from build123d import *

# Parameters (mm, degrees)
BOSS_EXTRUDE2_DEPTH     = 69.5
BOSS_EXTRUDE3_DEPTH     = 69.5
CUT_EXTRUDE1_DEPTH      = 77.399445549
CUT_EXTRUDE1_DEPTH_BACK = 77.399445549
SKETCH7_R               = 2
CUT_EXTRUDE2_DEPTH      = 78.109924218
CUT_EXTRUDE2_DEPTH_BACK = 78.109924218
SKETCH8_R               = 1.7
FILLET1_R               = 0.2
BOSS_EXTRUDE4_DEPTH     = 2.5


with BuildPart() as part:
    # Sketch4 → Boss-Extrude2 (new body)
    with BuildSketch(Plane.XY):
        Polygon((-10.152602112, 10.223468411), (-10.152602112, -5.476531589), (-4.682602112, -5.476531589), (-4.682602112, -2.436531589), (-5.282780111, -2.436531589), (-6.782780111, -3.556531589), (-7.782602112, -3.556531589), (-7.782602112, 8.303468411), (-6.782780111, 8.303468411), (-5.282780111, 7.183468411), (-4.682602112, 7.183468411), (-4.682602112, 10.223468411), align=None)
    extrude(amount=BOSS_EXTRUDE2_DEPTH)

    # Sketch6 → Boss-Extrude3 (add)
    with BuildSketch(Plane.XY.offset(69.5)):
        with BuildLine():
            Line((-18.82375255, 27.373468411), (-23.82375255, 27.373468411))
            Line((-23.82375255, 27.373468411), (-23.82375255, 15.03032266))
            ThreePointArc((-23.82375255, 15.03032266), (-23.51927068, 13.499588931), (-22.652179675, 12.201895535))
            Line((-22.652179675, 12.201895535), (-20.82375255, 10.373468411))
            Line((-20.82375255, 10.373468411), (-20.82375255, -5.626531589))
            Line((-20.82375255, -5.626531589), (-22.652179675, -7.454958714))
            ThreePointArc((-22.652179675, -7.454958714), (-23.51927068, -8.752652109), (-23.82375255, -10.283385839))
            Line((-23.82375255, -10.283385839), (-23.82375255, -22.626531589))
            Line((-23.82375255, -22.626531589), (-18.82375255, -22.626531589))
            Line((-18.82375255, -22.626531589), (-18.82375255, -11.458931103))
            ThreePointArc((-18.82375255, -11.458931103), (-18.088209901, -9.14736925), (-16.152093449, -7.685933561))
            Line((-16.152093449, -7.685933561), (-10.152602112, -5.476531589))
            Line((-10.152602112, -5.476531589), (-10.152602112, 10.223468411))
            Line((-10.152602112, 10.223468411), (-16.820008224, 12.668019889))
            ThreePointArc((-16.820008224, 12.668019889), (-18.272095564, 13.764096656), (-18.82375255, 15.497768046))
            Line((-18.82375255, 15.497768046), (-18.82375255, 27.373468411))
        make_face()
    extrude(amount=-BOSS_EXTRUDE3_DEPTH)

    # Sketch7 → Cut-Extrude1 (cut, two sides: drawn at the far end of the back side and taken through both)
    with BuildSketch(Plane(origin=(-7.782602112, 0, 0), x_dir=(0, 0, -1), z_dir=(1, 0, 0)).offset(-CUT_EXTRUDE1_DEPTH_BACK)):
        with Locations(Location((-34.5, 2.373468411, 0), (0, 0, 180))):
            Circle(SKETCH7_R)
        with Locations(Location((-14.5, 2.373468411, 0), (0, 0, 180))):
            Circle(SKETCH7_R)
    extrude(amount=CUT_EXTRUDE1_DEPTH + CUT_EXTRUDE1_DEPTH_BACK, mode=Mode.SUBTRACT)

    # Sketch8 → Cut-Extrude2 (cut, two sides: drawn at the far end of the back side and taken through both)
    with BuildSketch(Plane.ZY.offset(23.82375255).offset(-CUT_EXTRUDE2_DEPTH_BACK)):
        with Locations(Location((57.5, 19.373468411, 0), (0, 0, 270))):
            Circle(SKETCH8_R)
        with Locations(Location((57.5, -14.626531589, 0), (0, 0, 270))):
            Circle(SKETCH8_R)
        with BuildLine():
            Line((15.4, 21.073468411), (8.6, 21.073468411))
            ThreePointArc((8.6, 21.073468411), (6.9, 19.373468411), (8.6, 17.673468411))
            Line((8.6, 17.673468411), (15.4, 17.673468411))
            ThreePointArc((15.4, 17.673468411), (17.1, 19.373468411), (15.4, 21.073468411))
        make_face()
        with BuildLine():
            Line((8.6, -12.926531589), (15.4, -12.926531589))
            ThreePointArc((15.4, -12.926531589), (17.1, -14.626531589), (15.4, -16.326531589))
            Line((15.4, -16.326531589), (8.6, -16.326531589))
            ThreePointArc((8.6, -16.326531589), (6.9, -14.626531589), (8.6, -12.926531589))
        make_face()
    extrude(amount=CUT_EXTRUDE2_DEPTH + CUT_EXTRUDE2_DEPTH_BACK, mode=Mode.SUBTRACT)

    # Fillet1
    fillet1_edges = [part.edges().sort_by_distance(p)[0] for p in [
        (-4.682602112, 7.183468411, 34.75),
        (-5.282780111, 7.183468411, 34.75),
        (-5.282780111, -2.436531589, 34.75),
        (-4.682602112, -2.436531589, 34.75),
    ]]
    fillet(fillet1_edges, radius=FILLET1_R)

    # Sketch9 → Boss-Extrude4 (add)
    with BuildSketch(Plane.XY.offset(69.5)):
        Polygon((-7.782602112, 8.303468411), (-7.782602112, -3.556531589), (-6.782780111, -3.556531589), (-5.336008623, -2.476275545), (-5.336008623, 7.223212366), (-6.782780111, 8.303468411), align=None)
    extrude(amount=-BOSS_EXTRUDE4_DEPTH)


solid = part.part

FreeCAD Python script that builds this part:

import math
import FreeCAD as App
import Part
import Sketcher


def edges_at(feature, points):
    """Names of the edges that pass closest to the given points."""
    edges = feature.Shape.Edges
    near = lambda p: min(range(len(edges)), key=lambda i: edges[i].distToShape(Part.Vertex(*p))[0])
    return sorted({f"Edge{near(p) + 1}" for p in points})


def add_polygon(sketch, points):
    """Adds a closed chain of lines whose ends are joined by coincident constraints."""
    first, n = sketch.GeometryCount, len(points)
    for a, b in zip(points, points[1:] + points[:1]):
        sketch.addGeometry(Part.LineSegment(App.Vector(*a, 0), App.Vector(*b, 0)), False)
    for i in range(n):
        sketch.addConstraint(Sketcher.Constraint("Coincident", first + i, 2, first + (i + 1) % n, 1))

doc = App.newDocument("Part")
params = doc.addObject("Spreadsheet::Sheet", "Params")
for row, (alias, value) in enumerate([
    ("sketch1_height", "15.7 mm"),
    ("sketch1_width", "5.47 mm"),
    ("sketch1_height2", "3.04 mm"),
    ("sketch1_height3", "11.86 mm"),
    ("pad1_length", "69.5 mm"),
    ("sketch2_radius", "4 mm"),
    ("sketch2_radius2", "3 mm"),
    ("sketch2_width", "5 mm"),
    ("sketch2_height", "16 mm"),
    ("sketch2_height2", "15.7 mm"),
    ("pad2_length", "69.5 mm"),
    ("sketch3_diameter", "4 mm"),
    ("sketch4_diameter", "3.4 mm"),
    ("sketch4_height", "6.8 mm"),
    ("fillet_radius", "0.2 mm"),
    ("sketch5_height", "11.86 mm"),
    ("pad3_length", "2.5 mm"),
], start=1):
    params.set(f"A{row}", alias)
    params.set(f"B{row}", "=" + value)
    params.setAlias(f"B{row}", alias)

body = doc.addObject("PartDesign::Body", "Body")

sketch1 = body.newObject("Sketcher::SketchObject", "Sketch")
sketch1.AttachmentSupport = (doc.getObject("XY_Plane"), [""])
sketch1.MapMode = "FlatFace"
add_polygon(sketch1, [(-10.2, 10.2), (-10.2, -5.5), (-4.7, -5.5), (-4.7, -2.4), (-5.3, -2.4), (-6.8, -3.6), (-7.8, -3.6), (-7.8, 8.3), (-6.8, 8.3), (-5.3, 7.2), (-4.7, 7.2), (-4.7, 10.2)])
sketch1.addConstraint(Sketcher.Constraint("Vertical", 0))
sketch1.addConstraint(Sketcher.Constraint("Horizontal", 1))
sketch1.addConstraint(Sketcher.Constraint("Vertical", 2))
sketch1.addConstraint(Sketcher.Constraint("Horizontal", 3))
sketch1.addConstraint(Sketcher.Constraint("Horizontal", 5))
sketch1.addConstraint(Sketcher.Constraint("Vertical", 6))
sketch1.addConstraint(Sketcher.Constraint("Horizontal", 7))
sketch1.addConstraint(Sketcher.Constraint("Horizontal", 9))
sketch1.addConstraint(Sketcher.Constraint("Vertical", 10))
sketch1.addConstraint(Sketcher.Constraint("Horizontal", 11))
sketch1.addConstraint(Sketcher.Constraint("Vertical", 4, 2, 7, 2))
sketch1.addConstraint(Sketcher.Constraint("Vertical", 3, 2, 8, 2))
sketch1.addConstraint(Sketcher.Constraint("Vertical", 2, 2, 9, 2))
sketch1.addConstraint(Sketcher.Constraint("Equal", 2, 10))
sketch1.addConstraint(Sketcher.Constraint("Equal", 4, 8))
sketch1.addConstraint(Sketcher.Constraint("DistanceY", 0, 2, 0, 1, 15.7))
sketch1.addConstraint(Sketcher.Constraint("DistanceX", 1, 1, 1, 2, 5.47))
sketch1.addConstraint(Sketcher.Constraint("DistanceY", 2, 1, 2, 2, 3.04))
sketch1.addConstraint(Sketcher.Constraint("DistanceY", 6, 1, 6, 2, 11.86))
sketch1.addConstraint(Sketcher.Constraint("DistanceX", 4, 2, 3, 2, 1.5))
sketch1.addConstraint(Sketcher.Constraint("DistanceX", 5, 2, 2, 2, 3.1))
sketch1.addConstraint(Sketcher.Constraint("DistanceX", 3, 2, 3, 1, 0.600178))
sketch1.addConstraint(Sketcher.Constraint("DistanceY", 0, 2, -1, 1, 5.476532))
sketch1.addConstraint(Sketcher.Constraint("DistanceX", 3, 2, -1, 1, 5.28278))
sketch1.setExpression("Constraints[27]", "Params.sketch1_height")
sketch1.setExpression("Constraints[28]", "Params.sketch1_width")
sketch1.setExpression("Constraints[29]", "Params.sketch1_height2")
sketch1.setExpression("Constraints[30]", "Params.sketch1_height3")
pad1 = body.newObject("PartDesign::Pad", "Pad")
pad1.Profile = sketch1
pad1.setExpression("Length", "Params.pad1_length")

sketch2 = body.newObject("Sketcher::SketchObject", "Sketch001")
sketch2.AttachmentSupport = (doc.getObject("XY_Plane"), [""])
sketch2.MapMode = "FlatFace"
sketch2.AttachmentOffset = App.Placement(App.Vector(0, 0, 69.5), App.Rotation())
sketch2.addGeometry(Part.LineSegment(App.Vector(-18.8, 27.4, 0), App.Vector(-23.8, 27.4, 0)), False)
sketch2.addGeometry(Part.LineSegment(App.Vector(-23.8, 27.4, 0), App.Vector(-23.8, 15, 0)), False)
sketch2.addGeometry(Part.ArcOfCircle(Part.Circle(App.Vector(-19.8, 15, 0), App.Vector(0, 0, 1), 4), math.radians(-180), math.radians(-135)), False)
sketch2.addGeometry(Part.LineSegment(App.Vector(-22.7, 12.2, 0), App.Vector(-20.8, 10.4, 0)), False)
sketch2.addGeometry(Part.LineSegment(App.Vector(-20.8, 10.4, 0), App.Vector(-20.8, -5.6, 0)), False)
sketch2.addGeometry(Part.LineSegment(App.Vector(-20.8, -5.6, 0), App.Vector(-22.7, -7.5, 0)), False)
sketch2.addGeometry(Part.ArcOfCircle(Part.Circle(App.Vector(-19.8, -10.3, 0), App.Vector(0, 0, 1), 4), math.radians(135), math.radians(180)), False)
sketch2.addGeometry(Part.LineSegment(App.Vector(-23.8, -10.3, 0), App.Vector(-23.8, -22.6, 0)), False)
sketch2.addGeometry(Part.LineSegment(App.Vector(-23.8, -22.6, 0), App.Vector(-18.8, -22.6, 0)), False)
sketch2.addGeometry(Part.LineSegment(App.Vector(-18.8, -22.6, 0), App.Vector(-18.8, -11.5, 0)), False)
sketch2.addGeometry(Part.ArcOfCircle(Part.Circle(App.Vector(-14.8, -11.5, 0), App.Vector(0, 0, 1), 4), math.radians(109), math.radians(180)), False)
sketch2.addGeometry(Part.LineSegment(App.Vector(-16.2, -7.7, 0), App.Vector(-10.2, -5.5, 0)), False)
sketch2.addGeometry(Part.LineSegment(App.Vector(-10.2, -5.5, 0), App.Vector(-10.2, 10.2, 0)), False)
sketch2.addGeometry(Part.LineSegment(App.Vector(-10.2, 10.2, 0), App.Vector(-16.8, 12.7, 0)), False)
sketch2.addGeometry(Part.ArcOfCircle(Part.Circle(App.Vector(-15.8, 15.5, 0), App.Vector(0, 0, 1), 3), math.radians(180), math.radians(251)), False)
sketch2.addGeometry(Part.LineSegment(App.Vector(-18.8, 15.5, 0), App.Vector(-18.8, 27.4, 0)), False)
sketch2.addConstraint(Sketcher.Constraint("Coincident", 0, 2, 1, 1))
sketch2.addConstraint(Sketcher.Constraint("Tangent", 1, 2, 2, 1))
sketch2.addConstraint(Sketcher.Constraint("Tangent", 2, 2, 3, 1))
sketch2.addConstraint(Sketcher.Constraint("Coincident", 3, 2, 4, 1))
sketch2.addConstraint(Sketcher.Constraint("Coincident", 4, 2, 5, 1))
sketch2.addConstraint(Sketcher.Constraint("Tangent", 5, 2, 6, 1))
sketch2.addConstraint(Sketcher.Constraint("Tangent", 6, 2, 7, 1))
sketch2.addConstraint(Sketcher.Constraint("Coincident", 7, 2, 8, 1))
sketch2.addConstraint(Sketcher.Constraint("Coincident", 8, 2, 9, 1))
sketch2.addConstraint(Sketcher.Constraint("Tangent", 9, 2, 10, 2))
sketch2.addConstraint(Sketcher.Constraint("Coincident", 10, 1, 11, 1))
sketch2.addConstraint(Sketcher.Constraint("Coincident", 11, 2, 12, 1))
sketch2.addConstraint(Sketcher.Constraint("Coincident", 12, 2, 13, 1))
sketch2.addConstraint(Sketcher.Constraint("Coincident", 13, 2, 14, 2))
sketch2.addConstraint(Sketcher.Constraint("Tangent", 14, 1, 15, 1))
sketch2.addConstraint(Sketcher.Constraint("Coincident", 15, 2, 0, 1))
sketch2.addConstraint(Sketcher.Constraint("Horizontal", 0))
sketch2.addConstraint(Sketcher.Constraint("Vertical", 1))
sketch2.addConstraint(Sketcher.Constraint("Vertical", 4))
sketch2.addConstraint(Sketcher.Constraint("Vertical", 7))
sketch2.addConstraint(Sketcher.Constraint("Horizontal", 8))
sketch2.addConstraint(Sketcher.Constraint("Vertical", 9))
sketch2.addConstraint(Sketcher.Constraint("Vertical", 12))
sketch2.addConstraint(Sketcher.Constraint("Vertical", 15))
sketch2.addConstraint(Sketcher.Constraint("Equal", 2, 6))
sketch2.addConstraint(Sketcher.Constraint("Equal", 6, 10))
sketch2.addConstraint(Sketcher.Constraint("Perpendicular", 3, 5))
sketch2.addConstraint(Sketcher.Constraint("Vertical", 2, 3, 6, 3))
sketch2.addConstraint(Sketcher.Constraint("Vertical", 2, 2, 5, 2))
sketch2.addConstraint(Sketcher.Constraint("Vertical", 9, 2, 14, 1))
sketch2.addConstraint(Sketcher.Constraint("Equal", 1, 7))
sketch2.addConstraint(Sketcher.Constraint("Radius", 2, 4.0))
sketch2.addConstraint(Sketcher.Constraint("Radius", 14, 3.0))
sketch2.addConstraint(Sketcher.Constraint("DistanceX", 0, 2, 0, 1, 5.0))
sketch2.addConstraint(Sketcher.Constraint("DistanceY", 4, 2, 4, 1, 16.0))
sketch2.addConstraint(Sketcher.Constraint("DistanceY", 12, 1, 12, 2, 15.7))
sketch2.addConstraint(Sketcher.Constraint("DistanceX", 3, 2, 2, 3, 1.0))
sketch2.addConstraint(Sketcher.Constraint("DistanceY", 3, 2, 0, 2, 17.0))
sketch2.addConstraint(Sketcher.Constraint("DistanceY", 4, 2, 11, 2, 0.15))
sketch2.addConstraint(Sketcher.Constraint("DistanceY", 9, 1, 9, 2, 11.1676))
sketch2.addConstraint(Sketcher.Constraint("DistanceY", 15, 1, 15, 2, 11.8757))
sketch2.addConstraint(Sketcher.Constraint("DistanceY", 10, 1, 4, 2, 2.059402))
sketch2.addConstraint(Sketcher.Constraint("DistanceY", 10, 3, -1, 1, 11.458931))
sketch2.addConstraint(Sketcher.Constraint("DistanceX", 2, 2, -1, 1, 22.65218))
sketch2.addConstraint(Sketcher.Constraint("DistanceX", 13, 2, -1, 1, 16.820008))
sketch2.addConstraint(Sketcher.Constraint("DistanceX", 10, 1, 11, 2, 5.999491))
sketch2.setExpression("Constraints[31]", "Params.sketch2_radius")
sketch2.setExpression("Constraints[32]", "Params.sketch2_radius2")
sketch2.setExpression("Constraints[33]", "Params.sketch2_width")
sketch2.setExpression("Constraints[34]", "Params.sketch2_height")
sketch2.setExpression("Constraints[35]", "Params.sketch2_height2")
pad2 = body.newObject("PartDesign::Pad", "Pad001")
pad2.Profile = sketch2
pad2.setExpression("Length", "Params.pad2_length")
pad2.Reversed = True

sketch3 = body.newObject("Sketcher::SketchObject", "Sketch002")
sketch3.AttachmentSupport = (doc.getObject("YZ_Plane"), [""])
sketch3.MapMode = "FlatFace"
sketch3.AttachmentOffset = App.Placement(App.Vector(0, 0, -7.782602), App.Rotation())
sketch3.addGeometry(Part.Circle(App.Vector(2.4, 34.5, 0), App.Vector(0, 0, 1), 2), False)
sketch3.addGeometry(Part.Circle(App.Vector(2.4, 14.5, 0), App.Vector(0, 0, 1), 2), False)
sketch3.addConstraint(Sketcher.Constraint("Equal", 0, 1))
sketch3.addConstraint(Sketcher.Constraint("Vertical", 0, 3, 1, 3))
sketch3.addConstraint(Sketcher.Constraint("Diameter", 0, 4.0))
sketch3.addConstraint(Sketcher.Constraint("DistanceY", 1, 3, 0, 3, 20.0))
sketch3.addConstraint(Sketcher.Constraint("DistanceY", -1, 1, 0, 3, 34.5))
sketch3.addConstraint(Sketcher.Constraint("DistanceX", -1, 1, 0, 3, 2.373468))
sketch3.setExpression("Constraints[2]", "Params.sketch3_diameter")
pocket1 = body.newObject("PartDesign::Pocket", "Pocket")
pocket1.Profile = sketch3
pocket1.Type = "ThroughAll"
pocket1.Midplane = True

sketch4 = body.newObject("Sketcher::SketchObject", "Sketch003")
sketch4.AttachmentSupport = (doc.getObject("YZ_Plane"), [""])
sketch4.MapMode = "FlatFace"
sketch4.AttachmentOffset = App.Placement(App.Vector(0, 0, -23.823753), App.Rotation())
sketch4.addGeometry(Part.Circle(App.Vector(19.4, 57.5, 0), App.Vector(0, 0, 1), 1.7), False)
sketch4.addGeometry(Part.Circle(App.Vector(-14.6, 57.5, 0), App.Vector(0, 0, 1), 1.7), False)
sketch4.addGeometry(Part.LineSegment(App.Vector(21.1, 15.4, 0), App.Vector(21.1, 8.6, 0)), False)
sketch4.addGeometry(Part.ArcOfCircle(Part.Circle(App.Vector(19.4, 8.6, 0), App.Vector(0, 0, 1), 1.7), math.radians(180), math.radians(360)), False)
sketch4.addGeometry(Part.LineSegment(App.Vector(17.7, 8.6, 0), App.Vector(17.7, 15.4, 0)), False)
sketch4.addGeometry(Part.ArcOfCircle(Part.Circle(App.Vector(19.4, 15.4, 0), App.Vector(0, 0, 1), 1.7), math.radians(0), math.radians(180)), False)
sketch4.addGeometry(Part.LineSegment(App.Vector(-12.9, 15.4, 0), App.Vector(-12.9, 8.6, 0)), False)
sketch4.addGeometry(Part.ArcOfCircle(Part.Circle(App.Vector(-14.6, 8.6, 0), App.Vector(0, 0, 1), 1.7), math.radians(180), math.radians(360)), False)
sketch4.addGeometry(Part.LineSegment(App.Vector(-16.3, 8.6, 0), App.Vector(-16.3, 15.4, 0)), False)
sketch4.addGeometry(Part.ArcOfCircle(Part.Circle(App.Vector(-14.6, 15.4, 0), App.Vector(0, 0, 1), 1.7), math.radians(0), math.radians(180)), False)
sketch4.addConstraint(Sketcher.Constraint("Tangent", 2, 2, 3, 2))
sketch4.addConstraint(Sketcher.Constraint("Tangent", 3, 1, 4, 1))
sketch4.addConstraint(Sketcher.Constraint("Tangent", 4, 2, 5, 2))
sketch4.addConstraint(Sketcher.Constraint("Tangent", 5, 1, 2, 1))
sketch4.addConstraint(Sketcher.Constraint("Tangent", 6, 2, 7, 2))
sketch4.addConstraint(Sketcher.Constraint("Tangent", 7, 1, 8, 1))
sketch4.addConstraint(Sketcher.Constraint("Tangent", 8, 2, 9, 2))
sketch4.addConstraint(Sketcher.Constraint("Tangent", 9, 1, 6, 1))
sketch4.addConstraint(Sketcher.Constraint("Vertical", 2))
sketch4.addConstraint(Sketcher.Constraint("Vertical", 4))
sketch4.addConstraint(Sketcher.Constraint("Vertical", 6))
sketch4.addConstraint(Sketcher.Constraint("Vertical", 8))
sketch4.addConstraint(Sketcher.Constraint("Equal", 0, 1))
sketch4.addConstraint(Sketcher.Constraint("Equal", 1, 3))
sketch4.addConstraint(Sketcher.Constraint("Equal", 5, 7))
sketch4.addConstraint(Sketcher.Constraint("Horizontal", 0, 3, 1, 3))
sketch4.addConstraint(Sketcher.Constraint("Horizontal", 3, 3, 7, 3))
sketch4.addConstraint(Sketcher.Constraint("Horizontal", 5, 3, 9, 3))
sketch4.addConstraint(Sketcher.Constraint("Vertical", 0, 3, 3, 3))
sketch4.addConstraint(Sketcher.Constraint("Vertical", 1, 3, 7, 3))
sketch4.addConstraint(Sketcher.Constraint("Diameter", 0, 3.4))
sketch4.addConstraint(Sketcher.Constraint("DistanceY", 2, 2, 2, 1, 6.8))
sketch4.addConstraint(Sketcher.Constraint("DistanceX", 1, 3, 0, 3, 34.0))
sketch4.addConstraint(Sketcher.Constraint("DistanceY", -1, 1, 0, 3, 57.5))
sketch4.addConstraint(Sketcher.Constraint("DistanceY", -1, 1, 3, 3, 8.6))
sketch4.addConstraint(Sketcher.Constraint("DistanceX", -1, 1, 0, 3, 19.373468))
sketch4.setExpression("Constraints[20]", "Params.sketch4_diameter")
sketch4.setExpression("Constraints[21]", "Params.sketch4_height")
pocket2 = body.newObject("PartDesign::Pocket", "Pocket001")
pocket2.Profile = sketch4
pocket2.Type = "ThroughAll"
pocket2.Midplane = True
doc.recompute()

fillet = body.newObject("PartDesign::Fillet", "Fillet")
fillet.Base = (pocket2, edges_at(pocket2, [
    (-4.683, 7.183, 34.75),
    (-5.283, 7.183, 34.75),
    (-5.283, -2.437, 34.75),
    (-4.683, -2.437, 34.75),
]))
fillet.setExpression("Radius", "Params.fillet_radius")

sketch5 = body.newObject("Sketcher::SketchObject", "Sketch004")
sketch5.AttachmentSupport = (doc.getObject("XY_Plane"), [""])
sketch5.MapMode = "FlatFace"
sketch5.AttachmentOffset = App.Placement(App.Vector(0, 0, 69.5), App.Rotation())
add_polygon(sketch5, [(-7.8, 8.3), (-7.8, -3.6), (-6.8, -3.6), (-5.3, -2.5), (-5.3, 7.2), (-6.8, 8.3)])
sketch5.addConstraint(Sketcher.Constraint("Vertical", 0))
sketch5.addConstraint(Sketcher.Constraint("Horizontal", 1))
sketch5.addConstraint(Sketcher.Constraint("Vertical", 3))
sketch5.addConstraint(Sketcher.Constraint("Horizontal", 5))
sketch5.addConstraint(Sketcher.Constraint("Vertical", 1, 2, 4, 2))
sketch5.addConstraint(Sketcher.Constraint("Equal", 2, 4))
sketch5.addConstraint(Sketcher.Constraint("DistanceY", 0, 2, 0, 1, 11.86))
sketch5.addConstraint(Sketcher.Constraint("DistanceX", 1, 1, 1, 2, 0.999822))
sketch5.addConstraint(Sketcher.Constraint("DistanceY", 3, 1, 3, 2, 9.699488))
sketch5.addConstraint(Sketcher.Constraint("DistanceY", 0, 2, -1, 1, 3.556532))
sketch5.addConstraint(Sketcher.Constraint("DistanceX", 1, 2, -1, 1, 6.78278))
sketch5.addConstraint(Sketcher.Constraint("DistanceX", 2, 2, -1, 1, 5.336009))
sketch5.setExpression("Constraints[12]", "Params.sketch5_height")
pad3 = body.newObject("PartDesign::Pad", "Pad002")
pad3.Profile = sketch5
pad3.setExpression("Length", "Params.pad3_length")
pad3.Reversed = True

doc.recompute()
